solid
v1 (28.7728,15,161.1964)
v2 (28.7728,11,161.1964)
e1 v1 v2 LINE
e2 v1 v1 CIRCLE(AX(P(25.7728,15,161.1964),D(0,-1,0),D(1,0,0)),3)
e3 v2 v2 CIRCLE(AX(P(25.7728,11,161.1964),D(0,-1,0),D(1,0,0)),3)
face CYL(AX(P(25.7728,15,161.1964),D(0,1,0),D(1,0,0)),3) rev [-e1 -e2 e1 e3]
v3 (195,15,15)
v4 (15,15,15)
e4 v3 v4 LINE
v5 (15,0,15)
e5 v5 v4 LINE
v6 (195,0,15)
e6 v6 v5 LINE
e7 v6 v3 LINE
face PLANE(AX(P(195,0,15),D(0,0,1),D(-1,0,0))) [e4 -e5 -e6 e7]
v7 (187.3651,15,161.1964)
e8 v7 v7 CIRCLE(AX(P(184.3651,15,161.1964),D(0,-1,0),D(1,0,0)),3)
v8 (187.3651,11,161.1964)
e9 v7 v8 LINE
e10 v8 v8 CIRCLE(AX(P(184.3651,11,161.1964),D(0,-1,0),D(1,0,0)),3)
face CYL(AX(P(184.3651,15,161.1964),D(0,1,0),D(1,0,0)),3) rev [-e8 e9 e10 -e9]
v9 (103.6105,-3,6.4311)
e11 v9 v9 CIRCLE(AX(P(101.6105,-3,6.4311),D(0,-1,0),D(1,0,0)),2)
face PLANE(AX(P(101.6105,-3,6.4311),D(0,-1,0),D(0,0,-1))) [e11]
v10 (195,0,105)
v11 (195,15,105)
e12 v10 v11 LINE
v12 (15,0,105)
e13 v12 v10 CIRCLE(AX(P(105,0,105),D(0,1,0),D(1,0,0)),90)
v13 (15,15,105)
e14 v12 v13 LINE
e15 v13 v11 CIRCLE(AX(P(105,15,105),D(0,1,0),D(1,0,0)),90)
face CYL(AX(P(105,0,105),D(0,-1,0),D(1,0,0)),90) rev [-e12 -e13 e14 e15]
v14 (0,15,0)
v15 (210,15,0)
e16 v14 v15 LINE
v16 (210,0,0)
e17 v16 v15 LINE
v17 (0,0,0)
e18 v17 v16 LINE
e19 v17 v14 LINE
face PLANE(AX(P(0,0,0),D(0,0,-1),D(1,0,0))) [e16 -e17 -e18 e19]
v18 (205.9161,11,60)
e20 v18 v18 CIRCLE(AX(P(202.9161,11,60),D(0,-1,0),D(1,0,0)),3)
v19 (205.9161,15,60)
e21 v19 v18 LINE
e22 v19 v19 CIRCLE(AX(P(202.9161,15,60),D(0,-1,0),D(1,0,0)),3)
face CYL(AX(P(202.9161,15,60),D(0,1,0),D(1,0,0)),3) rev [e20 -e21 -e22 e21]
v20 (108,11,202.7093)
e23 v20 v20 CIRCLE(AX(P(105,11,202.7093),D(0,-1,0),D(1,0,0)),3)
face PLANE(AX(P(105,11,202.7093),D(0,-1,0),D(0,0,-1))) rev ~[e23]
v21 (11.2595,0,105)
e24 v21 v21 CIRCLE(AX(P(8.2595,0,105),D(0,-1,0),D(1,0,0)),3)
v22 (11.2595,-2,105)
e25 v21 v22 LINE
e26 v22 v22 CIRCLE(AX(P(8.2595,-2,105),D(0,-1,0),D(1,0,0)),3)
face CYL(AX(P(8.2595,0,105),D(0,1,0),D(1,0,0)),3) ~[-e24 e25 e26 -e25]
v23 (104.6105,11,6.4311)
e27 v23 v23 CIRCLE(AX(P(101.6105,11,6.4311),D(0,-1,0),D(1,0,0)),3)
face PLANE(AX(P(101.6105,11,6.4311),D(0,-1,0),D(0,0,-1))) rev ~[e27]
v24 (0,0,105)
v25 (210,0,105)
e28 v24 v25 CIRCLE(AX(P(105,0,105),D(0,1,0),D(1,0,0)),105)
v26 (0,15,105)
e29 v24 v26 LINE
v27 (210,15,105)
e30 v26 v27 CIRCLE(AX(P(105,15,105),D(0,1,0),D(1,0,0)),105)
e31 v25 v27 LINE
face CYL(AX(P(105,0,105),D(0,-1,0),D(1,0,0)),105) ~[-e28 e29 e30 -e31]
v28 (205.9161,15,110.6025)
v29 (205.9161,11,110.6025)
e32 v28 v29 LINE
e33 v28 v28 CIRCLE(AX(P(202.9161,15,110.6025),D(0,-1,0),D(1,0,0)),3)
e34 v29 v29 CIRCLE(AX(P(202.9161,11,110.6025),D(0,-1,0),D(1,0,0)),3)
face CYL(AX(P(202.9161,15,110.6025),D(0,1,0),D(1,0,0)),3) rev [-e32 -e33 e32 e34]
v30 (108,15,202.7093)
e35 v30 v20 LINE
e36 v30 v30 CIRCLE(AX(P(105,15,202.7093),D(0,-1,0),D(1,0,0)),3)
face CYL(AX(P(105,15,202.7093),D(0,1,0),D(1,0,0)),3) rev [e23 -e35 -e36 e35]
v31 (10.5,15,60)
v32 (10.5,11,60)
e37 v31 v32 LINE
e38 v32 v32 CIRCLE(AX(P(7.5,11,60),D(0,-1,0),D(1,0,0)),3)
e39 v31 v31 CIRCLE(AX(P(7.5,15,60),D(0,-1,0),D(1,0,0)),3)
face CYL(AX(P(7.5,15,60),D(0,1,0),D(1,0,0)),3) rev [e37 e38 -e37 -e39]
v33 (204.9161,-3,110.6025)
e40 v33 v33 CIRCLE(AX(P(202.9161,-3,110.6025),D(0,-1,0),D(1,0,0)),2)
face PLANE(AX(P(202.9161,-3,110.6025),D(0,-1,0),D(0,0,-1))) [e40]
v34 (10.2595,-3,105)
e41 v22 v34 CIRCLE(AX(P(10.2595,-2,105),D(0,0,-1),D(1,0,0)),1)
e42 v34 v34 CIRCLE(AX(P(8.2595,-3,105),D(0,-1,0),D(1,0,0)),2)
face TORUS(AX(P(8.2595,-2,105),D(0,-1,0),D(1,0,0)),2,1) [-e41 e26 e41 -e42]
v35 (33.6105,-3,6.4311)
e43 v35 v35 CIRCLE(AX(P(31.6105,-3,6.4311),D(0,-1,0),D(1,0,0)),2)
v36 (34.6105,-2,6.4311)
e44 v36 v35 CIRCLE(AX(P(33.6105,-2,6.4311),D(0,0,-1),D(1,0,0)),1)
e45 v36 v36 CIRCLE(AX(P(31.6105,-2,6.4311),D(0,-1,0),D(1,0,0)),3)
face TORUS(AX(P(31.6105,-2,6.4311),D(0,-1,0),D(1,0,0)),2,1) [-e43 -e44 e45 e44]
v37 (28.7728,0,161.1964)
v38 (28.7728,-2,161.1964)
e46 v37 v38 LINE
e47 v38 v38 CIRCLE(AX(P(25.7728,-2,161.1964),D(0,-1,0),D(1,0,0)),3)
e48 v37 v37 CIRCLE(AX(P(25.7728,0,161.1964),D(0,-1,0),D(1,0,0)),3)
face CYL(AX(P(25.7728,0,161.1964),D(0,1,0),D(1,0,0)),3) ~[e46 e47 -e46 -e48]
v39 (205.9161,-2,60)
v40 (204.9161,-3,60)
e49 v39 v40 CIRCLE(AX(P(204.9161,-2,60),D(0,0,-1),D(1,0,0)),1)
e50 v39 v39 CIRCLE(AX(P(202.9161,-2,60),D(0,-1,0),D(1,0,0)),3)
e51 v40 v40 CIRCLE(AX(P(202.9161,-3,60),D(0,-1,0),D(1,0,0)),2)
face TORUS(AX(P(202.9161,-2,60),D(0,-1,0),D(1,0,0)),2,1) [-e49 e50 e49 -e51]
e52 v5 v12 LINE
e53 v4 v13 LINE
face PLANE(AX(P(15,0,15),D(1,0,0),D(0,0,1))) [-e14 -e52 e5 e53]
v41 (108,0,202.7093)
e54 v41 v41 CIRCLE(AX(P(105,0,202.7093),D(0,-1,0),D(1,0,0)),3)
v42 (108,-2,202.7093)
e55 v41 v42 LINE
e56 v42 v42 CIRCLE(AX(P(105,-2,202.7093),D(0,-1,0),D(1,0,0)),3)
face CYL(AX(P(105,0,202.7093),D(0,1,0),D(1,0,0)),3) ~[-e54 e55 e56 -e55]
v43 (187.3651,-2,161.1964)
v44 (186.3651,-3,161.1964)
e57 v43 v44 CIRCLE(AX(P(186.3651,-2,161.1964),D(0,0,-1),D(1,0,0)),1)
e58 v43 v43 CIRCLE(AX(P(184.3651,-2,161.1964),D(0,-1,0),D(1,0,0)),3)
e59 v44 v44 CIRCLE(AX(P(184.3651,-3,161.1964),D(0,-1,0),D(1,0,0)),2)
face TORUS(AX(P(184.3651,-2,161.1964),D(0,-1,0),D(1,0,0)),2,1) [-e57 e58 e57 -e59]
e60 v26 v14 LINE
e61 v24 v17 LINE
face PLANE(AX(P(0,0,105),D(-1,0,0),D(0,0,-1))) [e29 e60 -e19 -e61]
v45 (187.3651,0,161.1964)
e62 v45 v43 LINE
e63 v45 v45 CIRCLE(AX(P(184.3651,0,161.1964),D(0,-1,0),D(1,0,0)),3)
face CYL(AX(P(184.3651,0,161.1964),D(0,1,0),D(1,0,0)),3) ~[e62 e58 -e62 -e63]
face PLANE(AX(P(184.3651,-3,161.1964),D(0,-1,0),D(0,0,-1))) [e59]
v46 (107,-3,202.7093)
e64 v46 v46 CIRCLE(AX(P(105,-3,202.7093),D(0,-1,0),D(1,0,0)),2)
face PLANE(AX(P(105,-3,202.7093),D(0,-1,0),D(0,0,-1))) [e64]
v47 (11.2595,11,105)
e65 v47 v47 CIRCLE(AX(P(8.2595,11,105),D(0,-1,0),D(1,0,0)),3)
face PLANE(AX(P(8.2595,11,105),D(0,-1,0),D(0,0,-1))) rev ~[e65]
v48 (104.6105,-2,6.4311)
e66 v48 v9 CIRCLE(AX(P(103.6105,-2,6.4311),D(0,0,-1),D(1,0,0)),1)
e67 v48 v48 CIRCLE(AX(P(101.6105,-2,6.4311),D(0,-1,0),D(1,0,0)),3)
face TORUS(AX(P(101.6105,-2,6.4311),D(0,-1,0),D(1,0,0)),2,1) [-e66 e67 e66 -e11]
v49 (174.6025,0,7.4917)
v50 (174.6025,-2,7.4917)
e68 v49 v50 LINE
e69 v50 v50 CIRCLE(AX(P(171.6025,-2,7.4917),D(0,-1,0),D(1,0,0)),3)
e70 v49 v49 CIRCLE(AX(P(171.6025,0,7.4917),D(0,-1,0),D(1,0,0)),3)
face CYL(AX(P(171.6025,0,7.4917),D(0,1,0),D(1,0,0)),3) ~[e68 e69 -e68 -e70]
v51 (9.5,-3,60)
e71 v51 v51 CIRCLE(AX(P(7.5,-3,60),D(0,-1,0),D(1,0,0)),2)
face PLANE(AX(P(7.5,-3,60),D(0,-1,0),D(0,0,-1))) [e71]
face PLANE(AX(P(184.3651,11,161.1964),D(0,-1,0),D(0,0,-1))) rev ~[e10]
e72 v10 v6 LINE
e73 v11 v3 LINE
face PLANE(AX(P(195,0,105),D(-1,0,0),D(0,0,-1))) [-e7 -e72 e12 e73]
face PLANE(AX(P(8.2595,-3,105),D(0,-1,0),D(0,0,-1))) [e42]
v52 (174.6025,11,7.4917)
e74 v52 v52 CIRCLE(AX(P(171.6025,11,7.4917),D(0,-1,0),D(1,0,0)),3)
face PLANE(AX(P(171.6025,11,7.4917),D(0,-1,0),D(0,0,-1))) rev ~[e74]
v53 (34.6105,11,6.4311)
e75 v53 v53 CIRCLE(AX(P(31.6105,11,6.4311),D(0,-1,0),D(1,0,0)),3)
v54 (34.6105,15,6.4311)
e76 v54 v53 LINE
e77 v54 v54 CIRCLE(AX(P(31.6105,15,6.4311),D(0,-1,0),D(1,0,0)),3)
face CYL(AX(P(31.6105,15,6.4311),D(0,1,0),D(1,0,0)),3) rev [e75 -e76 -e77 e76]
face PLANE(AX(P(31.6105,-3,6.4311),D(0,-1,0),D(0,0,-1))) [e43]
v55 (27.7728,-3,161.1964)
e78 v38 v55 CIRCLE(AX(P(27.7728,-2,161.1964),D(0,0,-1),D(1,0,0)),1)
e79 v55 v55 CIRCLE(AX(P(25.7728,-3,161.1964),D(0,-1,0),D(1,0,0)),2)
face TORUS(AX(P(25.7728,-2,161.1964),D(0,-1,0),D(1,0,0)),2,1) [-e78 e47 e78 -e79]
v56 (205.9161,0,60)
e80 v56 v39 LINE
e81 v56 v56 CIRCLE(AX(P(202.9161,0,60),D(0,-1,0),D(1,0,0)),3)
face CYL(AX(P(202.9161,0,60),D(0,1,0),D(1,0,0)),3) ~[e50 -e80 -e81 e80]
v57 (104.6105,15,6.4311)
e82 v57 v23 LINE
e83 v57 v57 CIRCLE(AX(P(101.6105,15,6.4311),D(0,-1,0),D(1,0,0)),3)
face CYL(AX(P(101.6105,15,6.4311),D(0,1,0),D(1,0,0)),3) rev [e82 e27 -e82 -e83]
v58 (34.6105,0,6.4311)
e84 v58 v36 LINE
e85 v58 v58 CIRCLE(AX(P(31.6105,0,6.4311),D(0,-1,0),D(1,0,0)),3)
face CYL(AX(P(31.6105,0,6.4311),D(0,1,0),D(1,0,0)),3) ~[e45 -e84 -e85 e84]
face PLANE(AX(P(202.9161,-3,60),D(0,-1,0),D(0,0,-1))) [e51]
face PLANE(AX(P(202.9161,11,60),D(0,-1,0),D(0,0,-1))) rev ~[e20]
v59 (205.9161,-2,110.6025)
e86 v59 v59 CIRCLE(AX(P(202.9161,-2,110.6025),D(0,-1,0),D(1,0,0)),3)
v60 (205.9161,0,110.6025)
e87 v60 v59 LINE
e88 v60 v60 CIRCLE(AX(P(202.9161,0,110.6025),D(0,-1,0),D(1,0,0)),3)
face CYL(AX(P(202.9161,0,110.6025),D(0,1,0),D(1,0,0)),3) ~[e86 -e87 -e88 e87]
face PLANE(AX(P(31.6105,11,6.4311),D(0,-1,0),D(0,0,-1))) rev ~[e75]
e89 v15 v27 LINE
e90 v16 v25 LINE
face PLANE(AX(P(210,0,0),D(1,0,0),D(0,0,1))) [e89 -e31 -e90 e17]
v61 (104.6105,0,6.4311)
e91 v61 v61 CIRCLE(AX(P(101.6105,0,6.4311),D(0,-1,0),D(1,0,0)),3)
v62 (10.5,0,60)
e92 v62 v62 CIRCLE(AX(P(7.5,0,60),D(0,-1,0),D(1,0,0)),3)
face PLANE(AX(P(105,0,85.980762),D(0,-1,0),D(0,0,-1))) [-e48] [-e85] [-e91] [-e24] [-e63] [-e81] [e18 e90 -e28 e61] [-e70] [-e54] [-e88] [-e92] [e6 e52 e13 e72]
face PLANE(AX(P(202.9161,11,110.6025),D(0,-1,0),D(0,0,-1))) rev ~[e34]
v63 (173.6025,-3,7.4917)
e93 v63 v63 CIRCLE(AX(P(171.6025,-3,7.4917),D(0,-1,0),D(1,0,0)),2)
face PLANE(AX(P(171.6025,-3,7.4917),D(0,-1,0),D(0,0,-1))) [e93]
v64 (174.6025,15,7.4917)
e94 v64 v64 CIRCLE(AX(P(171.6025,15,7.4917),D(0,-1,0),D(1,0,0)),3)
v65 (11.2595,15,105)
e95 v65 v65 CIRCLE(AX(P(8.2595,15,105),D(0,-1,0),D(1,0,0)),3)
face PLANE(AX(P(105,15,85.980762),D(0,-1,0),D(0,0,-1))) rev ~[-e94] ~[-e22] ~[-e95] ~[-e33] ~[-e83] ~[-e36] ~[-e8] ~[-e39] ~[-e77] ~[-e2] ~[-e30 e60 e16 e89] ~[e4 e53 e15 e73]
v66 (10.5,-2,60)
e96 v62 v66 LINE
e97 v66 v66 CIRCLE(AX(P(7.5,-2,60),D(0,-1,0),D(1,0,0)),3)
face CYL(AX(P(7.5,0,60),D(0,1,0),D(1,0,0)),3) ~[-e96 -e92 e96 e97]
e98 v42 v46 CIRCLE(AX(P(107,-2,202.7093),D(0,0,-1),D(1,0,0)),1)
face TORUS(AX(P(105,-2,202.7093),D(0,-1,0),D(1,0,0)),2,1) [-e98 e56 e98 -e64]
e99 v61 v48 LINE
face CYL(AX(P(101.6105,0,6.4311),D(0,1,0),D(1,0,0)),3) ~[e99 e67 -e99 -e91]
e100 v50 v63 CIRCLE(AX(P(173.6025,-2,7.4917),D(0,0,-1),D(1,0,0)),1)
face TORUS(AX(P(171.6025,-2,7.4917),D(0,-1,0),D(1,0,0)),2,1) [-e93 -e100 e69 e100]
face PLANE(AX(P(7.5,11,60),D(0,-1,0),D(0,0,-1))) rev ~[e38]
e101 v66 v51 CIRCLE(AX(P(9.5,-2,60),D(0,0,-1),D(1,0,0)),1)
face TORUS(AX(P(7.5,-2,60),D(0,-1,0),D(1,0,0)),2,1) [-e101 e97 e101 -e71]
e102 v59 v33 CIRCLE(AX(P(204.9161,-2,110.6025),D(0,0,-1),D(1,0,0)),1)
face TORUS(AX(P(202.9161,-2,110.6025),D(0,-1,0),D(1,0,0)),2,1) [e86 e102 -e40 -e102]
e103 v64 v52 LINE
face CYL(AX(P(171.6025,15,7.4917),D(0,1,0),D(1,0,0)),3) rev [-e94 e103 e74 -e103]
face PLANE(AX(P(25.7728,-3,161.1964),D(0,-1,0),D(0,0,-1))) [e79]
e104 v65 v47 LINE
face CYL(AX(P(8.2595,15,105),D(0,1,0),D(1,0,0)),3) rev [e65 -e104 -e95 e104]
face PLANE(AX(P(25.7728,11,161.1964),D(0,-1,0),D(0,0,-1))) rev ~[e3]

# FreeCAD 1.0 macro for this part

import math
import FreeCAD as App
import Part
import Sketcher
Q = App.Units.Quantity


def edges_at(feature, points):
    """Names of the edges that pass closest to the given points."""
    edges = feature.Shape.Edges
    near = lambda p: min(range(len(edges)), key=lambda i: edges[i].distToShape(Part.Vertex(*p))[0])
    return sorted({f"Edge{near(p) + 1}" for p in points})

doc = App.newDocument("Part")
body = doc.addObject("PartDesign::Body", "Body")

# Sketch on XZ plane
sketch1 = doc.addObject("Sketcher::SketchObject", "Sketch")
body.addObject(sketch1)
sketch1.AttachmentSupport = (doc.XZ_Plane, [""])
sketch1.MapMode = "FlatFace"
sketch1.addGeometry(Part.LineSegment(App.Vector(0, 0, 0), App.Vector(210, 0, 0)), False)
sketch1.addGeometry(Part.LineSegment(App.Vector(210, 0, 0), App.Vector(210, 105, 0)), False)
sketch1.addGeometry(Part.ArcOfCircle(Part.Circle(App.Vector(105, 105, 0), App.Vector(0, 0, 1), 105), math.radians(0), math.radians(180)), False)
sketch1.addGeometry(Part.LineSegment(App.Vector(0, 105, 0), App.Vector(0, 0, 0)), False)
sketch1.addConstraint(Sketcher.Constraint("Coincident", 0, 2, 1, 1))
sketch1.addConstraint(Sketcher.Constraint("Tangent", 1, 2, 2, 1))
sketch1.addConstraint(Sketcher.Constraint("Tangent", 2, 2, 3, 1))
sketch1.addConstraint(Sketcher.Constraint("Coincident", 3, 2, 0, 1))
sketch1.addConstraint(Sketcher.Constraint("Horizontal", 0))
sketch1.addConstraint(Sketcher.Constraint("Vertical", 1))
sketch1.addConstraint(Sketcher.Constraint("Vertical", 3))
sketch1.addConstraint(Sketcher.Constraint("Coincident", 3, 2, -1, 1))
sketch1.addConstraint(Sketcher.Constraint("Radius", 2, Q("105 mm")))
sketch1.addConstraint(Sketcher.Constraint("DistanceY", 1, 1, 1, 2, Q("105 mm")))
pad1 = doc.addObject("PartDesign::Pad", "Pad")
body.addObject(pad1)
pad1.Profile = sketch1
pad1.Length = 15
pad1.Reversed = True

# Sketch on XZ plane
sketch2 = doc.addObject("Sketcher::SketchObject", "Sketch001")
body.addObject(sketch2)
sketch2.AttachmentSupport = (doc.XZ_Plane, [""])
sketch2.MapMode = "FlatFace"
sketch2.addGeometry(Part.ArcOfCircle(Part.Circle(App.Vector(105, 105, 0), App.Vector(0, 0, 1), 90), math.radians(0), math.radians(180)), False)
sketch2.addGeometry(Part.LineSegment(App.Vector(15, 105, 0), App.Vector(15, 15, 0)), False)
sketch2.addGeometry(Part.LineSegment(App.Vector(15, 15, 0), App.Vector(195, 15, 0)), False)
sketch2.addGeometry(Part.LineSegment(App.Vector(195, 15, 0), App.Vector(195, 105, 0)), False)
sketch2.addConstraint(Sketcher.Constraint("Tangent", 0, 2, 1, 1))
sketch2.addConstraint(Sketcher.Constraint("Coincident", 1, 2, 2, 1))
sketch2.addConstraint(Sketcher.Constraint("Coincident", 2, 2, 3, 1))
sketch2.addConstraint(Sketcher.Constraint("Tangent", 3, 2, 0, 1))
sketch2.addConstraint(Sketcher.Constraint("Vertical", 1))
sketch2.addConstraint(Sketcher.Constraint("Horizontal", 2))
sketch2.addConstraint(Sketcher.Constraint("Vertical", 3))
sketch2.addConstraint(Sketcher.Constraint("Radius", 0, Q("90 mm")))
sketch2.addConstraint(Sketcher.Constraint("DistanceY", 1, 2, 1, 1, Q("90 mm")))
sketch2.addConstraint(Sketcher.Constraint("DistanceX", -1, 1, 0, 3, Q("105 mm")))
sketch2.addConstraint(Sketcher.Constraint("DistanceY", -1, 1, 0, 3, Q("105 mm")))
pocket1 = doc.addObject("PartDesign::Pocket", "Pocket")
body.addObject(pocket1)
pocket1.Profile = sketch2
pocket1.Length = 15

# Sketch on XZ plane
sketch3 = doc.addObject("Sketcher::SketchObject", "Sketch002")
body.addObject(sketch3)
sketch3.AttachmentSupport = (doc.XZ_Plane, [""])
sketch3.MapMode = "FlatFace"
sketch3.addGeometry(Part.Circle(App.Vector(105, 202.7, 0), App.Vector(0, 0, 1), 3), False)
sketch3.addGeometry(Part.Circle(App.Vector(184.4, 161.2, 0), App.Vector(0, 0, 1), 3), False)
sketch3.addGeometry(Part.Circle(App.Vector(202.9, 110.6, 0), App.Vector(0, 0, 1), 3), False)
sketch3.addGeometry(Part.Circle(App.Vector(202.9, 60, 0), App.Vector(0, 0, 1), 3), False)
sketch3.addGeometry(Part.Circle(App.Vector(171.6, 7.5, 0), App.Vector(0, 0, 1), 3), False)
sketch3.addGeometry(Part.Circle(App.Vector(101.6, 6.4, 0), App.Vector(0, 0, 1), 3), False)
sketch3.addGeometry(Part.Circle(App.Vector(7.5, 60, 0), App.Vector(0, 0, 1), 3), False)
sketch3.addGeometry(Part.Circle(App.Vector(31.6, 6.4, 0), App.Vector(0, 0, 1), 3), False)
sketch3.addGeometry(Part.Circle(App.Vector(8.3, 105, 0), App.Vector(0, 0, 1), 3), False)
sketch3.addGeometry(Part.Circle(App.Vector(25.8, 161.2, 0), App.Vector(0, 0, 1), 3), False)
sketch3.addConstraint(Sketcher.Constraint("Equal", 0, 1))
sketch3.addConstraint(Sketcher.Constraint("Equal", 1, 2))
sketch3.addConstraint(Sketcher.Constraint("Equal", 2, 3))
sketch3.addConstraint(Sketcher.Constraint("Equal", 3, 4))
sketch3.addConstraint(Sketcher.Constraint("Equal", 4, 5))
sketch3.addConstraint(Sketcher.Constraint("Equal", 5, 6))
sketch3.addConstraint(Sketcher.Constraint("Equal", 6, 7))
sketch3.addConstraint(Sketcher.Constraint("Equal", 7, 8))
sketch3.addConstraint(Sketcher.Constraint("Equal", 8, 9))
sketch3.addConstraint(Sketcher.Constraint("Horizontal", 3, 3, 6, 3))
sketch3.addConstraint(Sketcher.Constraint("Horizontal", 5, 3, 7, 3))
sketch3.addConstraint(Sketcher.Constraint("Horizontal", 1, 3, 9, 3))
sketch3.addConstraint(Sketcher.Constraint("Vertical", 2, 3, 3, 3))
sketch3.addConstraint(Sketcher.Constraint("Diameter", 0, Q("6 mm")))
sketch3.addConstraint(Sketcher.Constraint("DistanceX", -1, 1, 0, 3, Q("105 mm")))
sketch3.addConstraint(Sketcher.Constraint("DistanceY", -1, 1, 3, 3, Q("60 mm")))
sketch3.addConstraint(Sketcher.Constraint("DistanceY", -1, 1, 8, 3, Q("105 mm")))
sketch3.addConstraint(Sketcher.Constraint("DistanceX", 7, 3, 5, 3, Q("70 mm")))
sketch3.addConstraint(Sketcher.Constraint("DistanceX", -1, 1, 6, 3, Q("7.5 mm")))
sketch3.addConstraint(Sketcher.Constraint("DistanceX", -1, 1, 1, 3, Q("184.365 mm")))
sketch3.addConstraint(Sketcher.Constraint("DistanceX", -1, 1, 2, 3, Q("202.916 mm")))
sketch3.addConstraint(Sketcher.Constraint("DistanceY", -1, 1, 5, 3, Q("6.431 mm")))
sketch3.addConstraint(Sketcher.Constraint("DistanceY", 1, 3, 0, 3, Q("41.513 mm")))
sketch3.addConstraint(Sketcher.Constraint("DistanceY", 2, 3, 1, 3, Q("50.594 mm")))
sketch3.addConstraint(Sketcher.Constraint("DistanceX", 5, 3, 4, 3, Q("69.992 mm")))
sketch3.addConstraint(Sketcher.Constraint("DistanceX", 8, 3, 7, 3, Q("23.351 mm")))
sketch3.addConstraint(Sketcher.Constraint("DistanceY", -1, 1, 0, 3, Q("202.7093 mm")))
sketch3.addConstraint(Sketcher.Constraint("DistanceX", -1, 1, 4, 3, Q("171.6025 mm")))
sketch3.addConstraint(Sketcher.Constraint("DistanceY", -1, 1, 4, 3, Q("7.4917 mm")))
sketch3.addConstraint(Sketcher.Constraint("DistanceX", -1, 1, 9, 3, Q("25.7728 mm")))
pad2 = doc.addObject("PartDesign::Pad", "Pad001")
body.addObject(pad2)
pad2.Profile = sketch3
pad2.Length = 3

# Sketch on XZ plane
sketch4 = doc.addObject("Sketcher::SketchObject", "Sketch003")
body.addObject(sketch4)
sketch4.AttachmentSupport = (doc.XZ_Plane, [""])
sketch4.MapMode = "FlatFace"
sketch4.AttachmentOffset = App.Placement(App.Vector(0, 0, -15), App.Rotation())
sketch4.addGeometry(Part.Circle(App.Vector(105, 202.7, 0), App.Vector(0, 0, 1), 3), False)
sketch4.addGeometry(Part.Circle(App.Vector(25.8, 161.2, 0), App.Vector(0, 0, 1), 3), False)
sketch4.addGeometry(Part.Circle(App.Vector(8.3, 105, 0), App.Vector(0, 0, 1), 3), False)
sketch4.addGeometry(Part.Circle(App.Vector(7.5, 60, 0), App.Vector(0, 0, 1), 3), False)
sketch4.addGeometry(Part.Circle(App.Vector(31.6, 6.4, 0), App.Vector(0, 0, 1), 3), False)
sketch4.addGeometry(Part.Circle(App.Vector(101.6, 6.4, 0), App.Vector(0, 0, 1), 3), False)
sketch4.addGeometry(Part.Circle(App.Vector(171.6, 7.5, 0), App.Vector(0, 0, 1), 3), False)
sketch4.addGeometry(Part.Circle(App.Vector(202.9, 60, 0), App.Vector(0, 0, 1), 3), False)
sketch4.addGeometry(Part.Circle(App.Vector(202.9, 110.6, 0), App.Vector(0, 0, 1), 3), False)
sketch4.addGeometry(Part.Circle(App.Vector(184.4, 161.2, 0), App.Vector(0, 0, 1), 3), False)
sketch4.addConstraint(Sketcher.Constraint("Equal", 0, 1))
sketch4.addConstraint(Sketcher.Constraint("Equal", 1, 2))
sketch4.addConstraint(Sketcher.Constraint("Equal", 2, 3))
sketch4.addConstraint(Sketcher.Constraint("Equal", 3, 4))
sketch4.addConstraint(Sketcher.Constraint("Equal", 4, 5))
sketch4.addConstraint(Sketcher.Constraint("Equal", 5, 6))
sketch4.addConstraint(Sketcher.Constraint("Equal", 6, 7))
sketch4.addConstraint(Sketcher.Constraint("Equal", 7, 8))
sketch4.addConstraint(Sketcher.Constraint("Equal", 8, 9))
sketch4.addConstraint(Sketcher.Constraint("Horizontal", 4, 3, 5, 3))
sketch4.addConstraint(Sketcher.Constraint("Horizontal", 3, 3, 7, 3))
sketch4.addConstraint(Sketcher.Constraint("Horizontal", 1, 3, 9, 3))
sketch4.addConstraint(Sketcher.Constraint("Vertical", 7, 3, 8, 3))
sketch4.addConstraint(Sketcher.Constraint("Diameter", 0, Q("6 mm")))
sketch4.addConstraint(Sketcher.Constraint("DistanceX", -1, 1, 0, 3, Q("105 mm")))
sketch4.addConstraint(Sketcher.Constraint("DistanceY", -1, 1, 2, 3, Q("105 mm")))
sketch4.addConstraint(Sketcher.Constraint("DistanceY", -1, 1, 3, 3, Q("60 mm")))
sketch4.addConstraint(Sketcher.Constraint("DistanceX", 4, 3, 5, 3, Q("70 mm")))
sketch4.addConstraint(Sketcher.Constraint("DistanceX", -1, 1, 3, 3, Q("7.5 mm")))
sketch4.addConstraint(Sketcher.Constraint("DistanceY", -1, 1, 4, 3, Q("6.431 mm")))
sketch4.addConstraint(Sketcher.Constraint("DistanceX", -1, 1, 7, 3, Q("202.916 mm")))
sketch4.addConstraint(Sketcher.Constraint("DistanceX", -1, 1, 9, 3, Q("184.365 mm")))
sketch4.addConstraint(Sketcher.Constraint("DistanceY", 1, 3, 0, 3, Q("41.513 mm")))
sketch4.addConstraint(Sketcher.Constraint("DistanceX", 2, 3, 4, 3, Q("23.351 mm")))
sketch4.addConstraint(Sketcher.Constraint("DistanceX", 5, 3, 6, 3, Q("69.992 mm")))
sketch4.addConstraint(Sketcher.Constraint("DistanceY", 8, 3, 1, 3, Q("50.594 mm")))
sketch4.addConstraint(Sketcher.Constraint("DistanceY", -1, 1, 0, 3, Q("202.7093 mm")))
sketch4.addConstraint(Sketcher.Constraint("DistanceX", -1, 1, 1, 3, Q("25.7728 mm")))
sketch4.addConstraint(Sketcher.Constraint("DistanceX", -1, 1, 2, 3, Q("8.2595 mm")))
sketch4.addConstraint(Sketcher.Constraint("DistanceY", -1, 1, 6, 3, Q("7.4917 mm")))
pocket2 = doc.addObject("PartDesign::Pocket", "Pocket001")
body.addObject(pocket2)
pocket2.Profile = sketch4
pocket2.Length = 4
pocket2.Reversed = True
doc.recompute()

fillet = doc.addObject("PartDesign::Fillet", "Fillet")
body.addObject(fillet)
fillet.Base = (pocket2, edges_at(pocket2, [
    (22.773, -3, 161.196),
    (102, -3, 202.709),
    (181.365, -3, 161.196),
    (199.916, -3, 110.603),
    (199.916, -3, 60),
    (168.602, -3, 7.492),
    (98.611, -3, 6.431),
    (28.61, -3, 6.431),
    (4.5, -3, 60),
    (5.26, -3, 105),
]))
fillet.Radius = 1

doc.recompute()
